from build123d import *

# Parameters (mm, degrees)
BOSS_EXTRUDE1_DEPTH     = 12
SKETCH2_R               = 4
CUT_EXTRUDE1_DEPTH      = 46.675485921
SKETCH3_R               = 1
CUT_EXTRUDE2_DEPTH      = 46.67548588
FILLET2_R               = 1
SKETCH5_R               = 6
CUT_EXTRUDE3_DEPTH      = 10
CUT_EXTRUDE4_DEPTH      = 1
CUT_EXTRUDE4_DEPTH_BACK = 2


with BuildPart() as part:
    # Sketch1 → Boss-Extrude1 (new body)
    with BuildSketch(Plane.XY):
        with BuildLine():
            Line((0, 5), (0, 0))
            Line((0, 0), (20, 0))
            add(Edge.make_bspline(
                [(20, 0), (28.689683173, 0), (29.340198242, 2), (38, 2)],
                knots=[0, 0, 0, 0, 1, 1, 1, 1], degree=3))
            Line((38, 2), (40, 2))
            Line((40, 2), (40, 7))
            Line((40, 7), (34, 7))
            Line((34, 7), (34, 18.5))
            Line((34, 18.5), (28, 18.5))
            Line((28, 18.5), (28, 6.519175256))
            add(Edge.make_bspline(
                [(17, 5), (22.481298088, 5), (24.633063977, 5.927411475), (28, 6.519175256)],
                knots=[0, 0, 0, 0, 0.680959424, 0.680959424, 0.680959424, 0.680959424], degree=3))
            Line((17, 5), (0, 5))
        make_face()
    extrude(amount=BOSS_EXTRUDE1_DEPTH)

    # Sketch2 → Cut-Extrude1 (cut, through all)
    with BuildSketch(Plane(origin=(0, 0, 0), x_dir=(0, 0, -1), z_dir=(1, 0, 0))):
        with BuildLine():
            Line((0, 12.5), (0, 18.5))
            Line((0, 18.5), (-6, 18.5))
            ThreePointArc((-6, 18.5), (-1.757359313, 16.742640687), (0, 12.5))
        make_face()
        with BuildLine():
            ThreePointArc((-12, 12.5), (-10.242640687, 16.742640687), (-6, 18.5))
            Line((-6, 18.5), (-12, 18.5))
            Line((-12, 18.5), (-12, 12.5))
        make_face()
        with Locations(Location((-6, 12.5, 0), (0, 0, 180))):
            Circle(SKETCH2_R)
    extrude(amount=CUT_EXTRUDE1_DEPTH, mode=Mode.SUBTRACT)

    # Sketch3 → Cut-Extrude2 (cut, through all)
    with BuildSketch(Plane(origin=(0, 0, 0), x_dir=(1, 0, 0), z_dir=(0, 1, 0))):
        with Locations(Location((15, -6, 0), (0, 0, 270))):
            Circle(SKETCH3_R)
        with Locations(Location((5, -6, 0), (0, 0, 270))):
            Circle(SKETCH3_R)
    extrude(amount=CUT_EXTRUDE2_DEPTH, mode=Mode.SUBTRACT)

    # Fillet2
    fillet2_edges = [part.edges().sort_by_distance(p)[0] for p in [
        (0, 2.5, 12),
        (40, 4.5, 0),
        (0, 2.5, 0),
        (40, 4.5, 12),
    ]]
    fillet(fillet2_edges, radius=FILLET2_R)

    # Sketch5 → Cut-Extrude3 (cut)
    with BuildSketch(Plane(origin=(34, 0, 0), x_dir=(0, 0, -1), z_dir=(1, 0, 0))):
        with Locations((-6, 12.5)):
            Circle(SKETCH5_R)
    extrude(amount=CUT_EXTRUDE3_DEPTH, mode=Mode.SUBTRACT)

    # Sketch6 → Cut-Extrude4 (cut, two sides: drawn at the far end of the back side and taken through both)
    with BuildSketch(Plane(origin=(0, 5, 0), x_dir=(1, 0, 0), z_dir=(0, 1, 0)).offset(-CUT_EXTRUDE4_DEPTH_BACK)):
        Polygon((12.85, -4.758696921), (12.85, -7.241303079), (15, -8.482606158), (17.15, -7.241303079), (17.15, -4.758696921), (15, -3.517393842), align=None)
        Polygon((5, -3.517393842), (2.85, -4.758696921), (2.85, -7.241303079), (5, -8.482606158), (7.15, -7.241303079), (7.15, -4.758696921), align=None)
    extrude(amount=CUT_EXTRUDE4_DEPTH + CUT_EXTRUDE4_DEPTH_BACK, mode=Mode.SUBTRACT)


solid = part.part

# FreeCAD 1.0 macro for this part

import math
import FreeCAD as App
import Part
import Sketcher
from FreeCAD import Vector
Q = App.Units.Quantity


def edges_at(feature, points):
    """Names of the edges that pass closest to the given points."""
    edges = feature.Shape.Edges
    near = lambda p: min(range(len(edges)), key=lambda i: edges[i].distToShape(Part.Vertex(*p))[0])
    return sorted({f"Edge{near(p) + 1}" for p in points})

doc = App.newDocument("Part")
body = doc.addObject("PartDesign::Body", "Body")

# Sketch on XY plane
sketch1 = doc.addObject("Sketcher::SketchObject", "Sketch")
body.addObject(sketch1)
sketch1.AttachmentSupport = (doc.XY_Plane, [""])
sketch1.MapMode = "FlatFace"
sketch1.addGeometry(Part.LineSegment(Vector(0, 5, 0), Vector(0, 0, 0)), False)
sketch1.addGeometry(Part.LineSegment(Vector(0, 0, 0), Vector(20, 0, 0)), False)
sketch1.addGeometry(Part.BSplineCurve([Vector(20, 0, 0), Vector(28.689683, 0, 0), Vector(29.340198, 2, 0), Vector(38, 2, 0)], [4, 4], [0, 1], False, 3, [1, 1, 1, 1], False), False)
sketch1.addGeometry(Part.LineSegment(Vector(38, 2, 0), Vector(40, 2, 0)), False)
sketch1.addGeometry(Part.LineSegment(Vector(40, 2, 0), Vector(40, 7, 0)), False)
sketch1.addGeometry(Part.LineSegment(Vector(40, 7, 0), Vector(34, 7, 0)), False)
sketch1.addGeometry(Part.LineSegment(Vector(34, 7, 0), Vector(34, 18.5, 0)), False)
sketch1.addGeometry(Part.LineSegment(Vector(34, 18.5, 0), Vector(28, 18.5, 0)), False)
sketch1.addGeometry(Part.LineSegment(Vector(28, 18.5, 0), Vector(28, 6.519175, 0)), False)
sketch1.addGeometry(Part.BSplineCurve([Vector(17, 5, 0), Vector(22.481298, 5, 0), Vector(24.633064, 5.927411, 0), Vector(28, 6.519175, 0)], [4, 4], [0, 0.680959424], False, 3, [1, 1, 1, 1], False), False)
sketch1.addGeometry(Part.LineSegment(Vector(17, 5, 0), Vector(0, 5, 0)), False)
sketch1.addConstraint(Sketcher.Constraint("Block", 2))
sketch1.addConstraint(Sketcher.Constraint("Block", 9))
sketch1.addConstraint(Sketcher.Constraint("Coincident", 0, 2, 1, 1))
sketch1.addConstraint(Sketcher.Constraint("Coincident", 1, 2, 2, 1))
sketch1.addConstraint(Sketcher.Constraint("Coincident", 2, 2, 3, 1))
sketch1.addConstraint(Sketcher.Constraint("Coincident", 3, 2, 4, 1))
sketch1.addConstraint(Sketcher.Constraint("Coincident", 4, 2, 5, 1))
sketch1.addConstraint(Sketcher.Constraint("Coincident", 5, 2, 6, 1))
sketch1.addConstraint(Sketcher.Constraint("Coincident", 6, 2, 7, 1))
sketch1.addConstraint(Sketcher.Constraint("Coincident", 7, 2, 8, 1))
sketch1.addConstraint(Sketcher.Constraint("Coincident", 8, 2, 9, 2))
sketch1.addConstraint(Sketcher.Constraint("Coincident", 9, 1, 10, 1))
sketch1.addConstraint(Sketcher.Constraint("Coincident", 10, 2, 0, 1))
sketch1.addConstraint(Sketcher.Constraint("Vertical", 0))
sketch1.addConstraint(Sketcher.Constraint("Horizontal", 1))
sketch1.addConstraint(Sketcher.Constraint("Horizontal", 3))
sketch1.addConstraint(Sketcher.Constraint("Vertical", 4))
sketch1.addConstraint(Sketcher.Constraint("Horizontal", 5))
sketch1.addConstraint(Sketcher.Constraint("Vertical", 6))
sketch1.addConstraint(Sketcher.Constraint("Horizontal", 7))
sketch1.addConstraint(Sketcher.Constraint("Vertical", 8))
sketch1.addConstraint(Sketcher.Constraint("Horizontal", 10))
sketch1.addConstraint(Sketcher.Constraint("PointOnObject", 10, 2, -2))
sketch1.addConstraint(Sketcher.Constraint("Equal", 5, 7))
sketch1.addConstraint(Sketcher.Constraint("Equal", 0, 4))
sketch1.addConstraint(Sketcher.Constraint("DistanceX", 3, 1, 3, 2, Q("2 mm")))
sketch1.addConstraint(Sketcher.Constraint("DistanceY", 6, 1, 6, 2, Q("11.5 mm")))
pad1 = doc.addObject("PartDesign::Pad", "Pad")
body.addObject(pad1)
pad1.Profile = sketch1
pad1.Length = 12

# Sketch on YZ plane
sketch2 = doc.addObject("Sketcher::SketchObject", "Sketch001")
body.addObject(sketch2)
sketch2.AttachmentSupport = (doc.YZ_Plane, [""])
sketch2.MapMode = "FlatFace"
sketch2.addGeometry(Part.LineSegment(Vector(12.5, 0, 0), Vector(18.5, 0, 0)), False)
sketch2.addGeometry(Part.LineSegment(Vector(18.5, 0, 0), Vector(18.5, 6, 0)), False)
sketch2.addGeometry(Part.ArcOfCircle(Part.Circle(Vector(12.5, 6, 0), Vector(0, 0, 1), 6), math.radians(-90), math.radians(0)), False)
sketch2.addGeometry(Part.ArcOfCircle(Part.Circle(Vector(12.5, 6, 0), Vector(0, 0, 1), 6), math.radians(0), math.radians(90)), False)
sketch2.addGeometry(Part.LineSegment(Vector(18.5, 6, 0), Vector(18.5, 12, 0)), False)
sketch2.addGeometry(Part.LineSegment(Vector(18.5, 12, 0), Vector(12.5, 12, 0)), False)
sketch2.addGeometry(Part.Circle(Vector(12.5, 6, 0), Vector(0, 0, 1), 4), False)
sketch2.addConstraint(Sketcher.Constraint("Coincident", 0, 2, 1, 1))
sketch2.addConstraint(Sketcher.Constraint("Tangent", 1, 2, 2, 2))
sketch2.addConstraint(Sketcher.Constraint("Tangent", 2, 1, 0, 1))
sketch2.addConstraint(Sketcher.Constraint("Tangent", 3, 1, 4, 1))
sketch2.addConstraint(Sketcher.Constraint("Coincident", 4, 2, 5, 1))
sketch2.addConstraint(Sketcher.Constraint("Tangent", 5, 2, 3, 2))
sketch2.addConstraint(Sketcher.Constraint("Horizontal", 0))
sketch2.addConstraint(Sketcher.Constraint("Vertical", 1))
sketch2.addConstraint(Sketcher.Constraint("Vertical", 4))
sketch2.addConstraint(Sketcher.Constraint("Horizontal", 5))
sketch2.addConstraint(Sketcher.Constraint("Coincident", 3, 3, 2, 3))
sketch2.addConstraint(Sketcher.Constraint("Coincident", 6, 3, 2, 3))
sketch2.addConstraint(Sketcher.Constraint("Equal", 2, 3))
sketch2.addConstraint(Sketcher.Constraint("PointOnObject", 0, 2, -1))
sketch2.addConstraint(Sketcher.Constraint("Diameter", 6, Q("8 mm")))
sketch2.addConstraint(Sketcher.Constraint("Radius", 2, Q("6 mm")))
sketch2.addConstraint(Sketcher.Constraint("DistanceX", -1, 1, 2, 3, Q("12.5 mm")))
pocket1 = doc.addObject("PartDesign::Pocket", "Pocket")
body.addObject(pocket1)
pocket1.Profile = sketch2
pocket1.Type = "ThroughAll"
pocket1.Reversed = True

# Sketch on XZ plane
sketch3 = doc.addObject("Sketcher::SketchObject", "Sketch002")
body.addObject(sketch3)
sketch3.AttachmentSupport = (doc.XZ_Plane, [""])
sketch3.MapMode = "FlatFace"
sketch3.addGeometry(Part.Circle(Vector(15, 6, 0), Vector(0, 0, 1), 1), False)
sketch3.addGeometry(Part.Circle(Vector(5, 6, 0), Vector(0, 0, 1), 1), False)
sketch3.addConstraint(Sketcher.Constraint("Equal", 0, 1))
sketch3.addConstraint(Sketcher.Constraint("Horizontal", 0, 3, 1, 3))
sketch3.addConstraint(Sketcher.Constraint("Diameter", 0, Q("2 mm")))
sketch3.addConstraint(Sketcher.Constraint("DistanceX", -1, 1, 0, 3, Q("15 mm")))
sketch3.addConstraint(Sketcher.Constraint("DistanceY", -1, 1, 0, 3, Q("6 mm")))
sketch3.addConstraint(Sketcher.Constraint("DistanceX", -1, 1, 1, 3, Q("5 mm")))
pocket2 = doc.addObject("PartDesign::Pocket", "Pocket001")
body.addObject(pocket2)
pocket2.Profile = sketch3
pocket2.Type = "ThroughAll"
doc.recompute()

fillet = doc.addObject("PartDesign::Fillet", "Fillet")
body.addObject(fillet)
fillet.Base = (pocket2, edges_at(pocket2, [
    (0, 2.5, 12),
    (40, 4.5, 0),
    (0, 2.5, 0),
    (40, 4.5, 12),
]))
fillet.Radius = 1

# Sketch on YZ plane
sketch4 = doc.addObject("Sketcher::SketchObject", "Sketch003")
body.addObject(sketch4)
sketch4.AttachmentSupport = (doc.YZ_Plane, [""])
sketch4.MapMode = "FlatFace"
sketch4.AttachmentOffset = App.Placement(Vector(0, 0, 34), App.Rotation())
sketch4.addGeometry(Part.Circle(Vector(12, 6, 0), Vector(0, 0, 1), 6), False)
sketch4.addConstraint(Sketcher.Constraint("Diameter", 0, Q("12 mm")))
sketch4.addConstraint(Sketcher.Constraint("DistanceY", -1, 1, 0, 3, Q("6 mm")))
sketch4.addConstraint(Sketcher.Constraint("DistanceX", -1, 1, 0, 3, Q("12.5 mm")))
pocket3 = doc.addObject("PartDesign::Pocket", "Pocket002")
body.addObject(pocket3)
pocket3.Profile = sketch4
pocket3.Length = 10
pocket3.Reversed = True

# Sketch on XZ plane
sketch5 = doc.addObject("Sketcher::SketchObject", "Sketch004")
body.addObject(sketch5)
sketch5.AttachmentSupport = (doc.XZ_Plane, [""])
sketch5.MapMode = "FlatFace"
sketch5.AttachmentOffset = App.Placement(Vector(0, 0, -5), App.Rotation())
sketch5.addGeometry(Part.LineSegment(Vector(12.8, 4.8, 0), Vector(12.8, 7.2, 0)), False)
sketch5.addGeometry(Part.LineSegment(Vector(12.8, 7.2, 0), Vector(15, 8.5, 0)), False)
sketch5.addGeometry(Part.LineSegment(Vector(15, 8.5, 0), Vector(17.1, 7.2, 0)), False)
sketch5.addGeometry(Part.LineSegment(Vector(17.1, 7.2, 0), Vector(17.1, 4.8, 0)), False)
sketch5.addGeometry(Part.LineSegment(Vector(17.1, 4.8, 0), Vector(15, 3.5, 0)), False)
sketch5.addGeometry(Part.LineSegment(Vector(15, 3.5, 0), Vector(12.8, 4.8, 0)), False)
sketch5.addGeometry(Part.LineSegment(Vector(5, 3.5, 0), Vector(2.9, 4.8, 0)), False)
sketch5.addGeometry(Part.LineSegment(Vector(2.9, 4.8, 0), Vector(2.9, 7.2, 0)), False)
sketch5.addGeometry(Part.LineSegment(Vector(2.9, 7.2, 0), Vector(5, 8.5, 0)), False)
sketch5.addGeometry(Part.LineSegment(Vector(5, 8.5, 0), Vector(7.2, 7.2, 0)), False)
sketch5.addGeometry(Part.LineSegment(Vector(7.2, 7.2, 0), Vector(7.2, 4.8, 0)), False)
sketch5.addGeometry(Part.LineSegment(Vector(7.2, 4.8, 0), Vector(5, 3.5, 0)), False)
sketch5.addConstraint(Sketcher.Constraint("Coincident", 0, 2, 1, 1))
sketch5.addConstraint(Sketcher.Constraint("Coincident", 1, 2, 2, 1))
sketch5.addConstraint(Sketcher.Constraint("Coincident", 2, 2, 3, 1))
sketch5.addConstraint(Sketcher.Constraint("Coincident", 3, 2, 4, 1))
sketch5.addConstraint(Sketcher.Constraint("Coincident", 4, 2, 5, 1))
sketch5.addConstraint(Sketcher.Constraint("Coincident", 5, 2, 0, 1))
sketch5.addConstraint(Sketcher.Constraint("Coincident", 6, 2, 7, 1))
sketch5.addConstraint(Sketcher.Constraint("Coincident", 7, 2, 8, 1))
sketch5.addConstraint(Sketcher.Constraint("Coincident", 8, 2, 9, 1))
sketch5.addConstraint(Sketcher.Constraint("Coincident", 9, 2, 10, 1))
sketch5.addConstraint(Sketcher.Constraint("Coincident", 10, 2, 11, 1))
sketch5.addConstraint(Sketcher.Constraint("Coincident", 11, 2, 6, 1))
sketch5.addConstraint(Sketcher.Constraint("Vertical", 0))
sketch5.addConstraint(Sketcher.Constraint("Vertical", 3))
sketch5.addConstraint(Sketcher.Constraint("Vertical", 7))
sketch5.addConstraint(Sketcher.Constraint("Vertical", 10))
sketch5.addConstraint(Sketcher.Constraint("Parallel", 1, 4))
sketch5.addConstraint(Sketcher.Constraint("Parallel", 2, 5))
sketch5.addConstraint(Sketcher.Constraint("Parallel", 5, 6))
sketch5.addConstraint(Sketcher.Constraint("Parallel", 4, 8))
sketch5.addConstraint(Sketcher.Constraint("Parallel", 6, 9))
sketch5.addConstraint(Sketcher.Constraint("Parallel", 8, 11))
sketch5.addConstraint(Sketcher.Constraint("Horizontal", 0, 2, 2, 2))
sketch5.addConstraint(Sketcher.Constraint("Horizontal", 3, 2, 5, 2))
sketch5.addConstraint(Sketcher.Constraint("Horizontal", 5, 2, 6, 2))
sketch5.addConstraint(Sketcher.Constraint("Horizontal", 2, 2, 7, 2))
sketch5.addConstraint(Sketcher.Constraint("Horizontal", 1, 2, 8, 2))
sketch5.addConstraint(Sketcher.Constraint("Horizontal", 7, 2, 9, 2))
sketch5.addConstraint(Sketcher.Constraint("Horizontal", 6, 2, 10, 2))
sketch5.addConstraint(Sketcher.Constraint("Vertical", 1, 2, 4, 2))
sketch5.addConstraint(Sketcher.Constraint("Angle", 1, Q("30 deg")))
sketch5.addConstraint(Sketcher.Constraint("DistanceX", -1, 1, 1, 2, Q("15 mm")))
sketch5.addConstraint(Sketcher.Constraint("DistanceX", -1, 1, 8, 2, Q("5 mm")))
sketch5.addConstraint(Sketcher.Constraint("DistanceX", 0, 2, 2, 2, Q("4.3 mm")))
sketch5.addConstraint(Sketcher.Constraint("DistanceY", 0, 1, 0, 2, Q("2.482606 mm")))
sketch5.addConstraint(Sketcher.Constraint("DistanceY", -1, 1, 0, 2, Q("7.241303 mm")))
pocket4 = doc.addObject("PartDesign::Pocket", "Pocket003")
body.addObject(pocket4)
pocket4.Profile = sketch5
pocket4.Type = "TwoLengths"
pocket4.Length = 1
pocket4.Length2 = 2

doc.recompute()
